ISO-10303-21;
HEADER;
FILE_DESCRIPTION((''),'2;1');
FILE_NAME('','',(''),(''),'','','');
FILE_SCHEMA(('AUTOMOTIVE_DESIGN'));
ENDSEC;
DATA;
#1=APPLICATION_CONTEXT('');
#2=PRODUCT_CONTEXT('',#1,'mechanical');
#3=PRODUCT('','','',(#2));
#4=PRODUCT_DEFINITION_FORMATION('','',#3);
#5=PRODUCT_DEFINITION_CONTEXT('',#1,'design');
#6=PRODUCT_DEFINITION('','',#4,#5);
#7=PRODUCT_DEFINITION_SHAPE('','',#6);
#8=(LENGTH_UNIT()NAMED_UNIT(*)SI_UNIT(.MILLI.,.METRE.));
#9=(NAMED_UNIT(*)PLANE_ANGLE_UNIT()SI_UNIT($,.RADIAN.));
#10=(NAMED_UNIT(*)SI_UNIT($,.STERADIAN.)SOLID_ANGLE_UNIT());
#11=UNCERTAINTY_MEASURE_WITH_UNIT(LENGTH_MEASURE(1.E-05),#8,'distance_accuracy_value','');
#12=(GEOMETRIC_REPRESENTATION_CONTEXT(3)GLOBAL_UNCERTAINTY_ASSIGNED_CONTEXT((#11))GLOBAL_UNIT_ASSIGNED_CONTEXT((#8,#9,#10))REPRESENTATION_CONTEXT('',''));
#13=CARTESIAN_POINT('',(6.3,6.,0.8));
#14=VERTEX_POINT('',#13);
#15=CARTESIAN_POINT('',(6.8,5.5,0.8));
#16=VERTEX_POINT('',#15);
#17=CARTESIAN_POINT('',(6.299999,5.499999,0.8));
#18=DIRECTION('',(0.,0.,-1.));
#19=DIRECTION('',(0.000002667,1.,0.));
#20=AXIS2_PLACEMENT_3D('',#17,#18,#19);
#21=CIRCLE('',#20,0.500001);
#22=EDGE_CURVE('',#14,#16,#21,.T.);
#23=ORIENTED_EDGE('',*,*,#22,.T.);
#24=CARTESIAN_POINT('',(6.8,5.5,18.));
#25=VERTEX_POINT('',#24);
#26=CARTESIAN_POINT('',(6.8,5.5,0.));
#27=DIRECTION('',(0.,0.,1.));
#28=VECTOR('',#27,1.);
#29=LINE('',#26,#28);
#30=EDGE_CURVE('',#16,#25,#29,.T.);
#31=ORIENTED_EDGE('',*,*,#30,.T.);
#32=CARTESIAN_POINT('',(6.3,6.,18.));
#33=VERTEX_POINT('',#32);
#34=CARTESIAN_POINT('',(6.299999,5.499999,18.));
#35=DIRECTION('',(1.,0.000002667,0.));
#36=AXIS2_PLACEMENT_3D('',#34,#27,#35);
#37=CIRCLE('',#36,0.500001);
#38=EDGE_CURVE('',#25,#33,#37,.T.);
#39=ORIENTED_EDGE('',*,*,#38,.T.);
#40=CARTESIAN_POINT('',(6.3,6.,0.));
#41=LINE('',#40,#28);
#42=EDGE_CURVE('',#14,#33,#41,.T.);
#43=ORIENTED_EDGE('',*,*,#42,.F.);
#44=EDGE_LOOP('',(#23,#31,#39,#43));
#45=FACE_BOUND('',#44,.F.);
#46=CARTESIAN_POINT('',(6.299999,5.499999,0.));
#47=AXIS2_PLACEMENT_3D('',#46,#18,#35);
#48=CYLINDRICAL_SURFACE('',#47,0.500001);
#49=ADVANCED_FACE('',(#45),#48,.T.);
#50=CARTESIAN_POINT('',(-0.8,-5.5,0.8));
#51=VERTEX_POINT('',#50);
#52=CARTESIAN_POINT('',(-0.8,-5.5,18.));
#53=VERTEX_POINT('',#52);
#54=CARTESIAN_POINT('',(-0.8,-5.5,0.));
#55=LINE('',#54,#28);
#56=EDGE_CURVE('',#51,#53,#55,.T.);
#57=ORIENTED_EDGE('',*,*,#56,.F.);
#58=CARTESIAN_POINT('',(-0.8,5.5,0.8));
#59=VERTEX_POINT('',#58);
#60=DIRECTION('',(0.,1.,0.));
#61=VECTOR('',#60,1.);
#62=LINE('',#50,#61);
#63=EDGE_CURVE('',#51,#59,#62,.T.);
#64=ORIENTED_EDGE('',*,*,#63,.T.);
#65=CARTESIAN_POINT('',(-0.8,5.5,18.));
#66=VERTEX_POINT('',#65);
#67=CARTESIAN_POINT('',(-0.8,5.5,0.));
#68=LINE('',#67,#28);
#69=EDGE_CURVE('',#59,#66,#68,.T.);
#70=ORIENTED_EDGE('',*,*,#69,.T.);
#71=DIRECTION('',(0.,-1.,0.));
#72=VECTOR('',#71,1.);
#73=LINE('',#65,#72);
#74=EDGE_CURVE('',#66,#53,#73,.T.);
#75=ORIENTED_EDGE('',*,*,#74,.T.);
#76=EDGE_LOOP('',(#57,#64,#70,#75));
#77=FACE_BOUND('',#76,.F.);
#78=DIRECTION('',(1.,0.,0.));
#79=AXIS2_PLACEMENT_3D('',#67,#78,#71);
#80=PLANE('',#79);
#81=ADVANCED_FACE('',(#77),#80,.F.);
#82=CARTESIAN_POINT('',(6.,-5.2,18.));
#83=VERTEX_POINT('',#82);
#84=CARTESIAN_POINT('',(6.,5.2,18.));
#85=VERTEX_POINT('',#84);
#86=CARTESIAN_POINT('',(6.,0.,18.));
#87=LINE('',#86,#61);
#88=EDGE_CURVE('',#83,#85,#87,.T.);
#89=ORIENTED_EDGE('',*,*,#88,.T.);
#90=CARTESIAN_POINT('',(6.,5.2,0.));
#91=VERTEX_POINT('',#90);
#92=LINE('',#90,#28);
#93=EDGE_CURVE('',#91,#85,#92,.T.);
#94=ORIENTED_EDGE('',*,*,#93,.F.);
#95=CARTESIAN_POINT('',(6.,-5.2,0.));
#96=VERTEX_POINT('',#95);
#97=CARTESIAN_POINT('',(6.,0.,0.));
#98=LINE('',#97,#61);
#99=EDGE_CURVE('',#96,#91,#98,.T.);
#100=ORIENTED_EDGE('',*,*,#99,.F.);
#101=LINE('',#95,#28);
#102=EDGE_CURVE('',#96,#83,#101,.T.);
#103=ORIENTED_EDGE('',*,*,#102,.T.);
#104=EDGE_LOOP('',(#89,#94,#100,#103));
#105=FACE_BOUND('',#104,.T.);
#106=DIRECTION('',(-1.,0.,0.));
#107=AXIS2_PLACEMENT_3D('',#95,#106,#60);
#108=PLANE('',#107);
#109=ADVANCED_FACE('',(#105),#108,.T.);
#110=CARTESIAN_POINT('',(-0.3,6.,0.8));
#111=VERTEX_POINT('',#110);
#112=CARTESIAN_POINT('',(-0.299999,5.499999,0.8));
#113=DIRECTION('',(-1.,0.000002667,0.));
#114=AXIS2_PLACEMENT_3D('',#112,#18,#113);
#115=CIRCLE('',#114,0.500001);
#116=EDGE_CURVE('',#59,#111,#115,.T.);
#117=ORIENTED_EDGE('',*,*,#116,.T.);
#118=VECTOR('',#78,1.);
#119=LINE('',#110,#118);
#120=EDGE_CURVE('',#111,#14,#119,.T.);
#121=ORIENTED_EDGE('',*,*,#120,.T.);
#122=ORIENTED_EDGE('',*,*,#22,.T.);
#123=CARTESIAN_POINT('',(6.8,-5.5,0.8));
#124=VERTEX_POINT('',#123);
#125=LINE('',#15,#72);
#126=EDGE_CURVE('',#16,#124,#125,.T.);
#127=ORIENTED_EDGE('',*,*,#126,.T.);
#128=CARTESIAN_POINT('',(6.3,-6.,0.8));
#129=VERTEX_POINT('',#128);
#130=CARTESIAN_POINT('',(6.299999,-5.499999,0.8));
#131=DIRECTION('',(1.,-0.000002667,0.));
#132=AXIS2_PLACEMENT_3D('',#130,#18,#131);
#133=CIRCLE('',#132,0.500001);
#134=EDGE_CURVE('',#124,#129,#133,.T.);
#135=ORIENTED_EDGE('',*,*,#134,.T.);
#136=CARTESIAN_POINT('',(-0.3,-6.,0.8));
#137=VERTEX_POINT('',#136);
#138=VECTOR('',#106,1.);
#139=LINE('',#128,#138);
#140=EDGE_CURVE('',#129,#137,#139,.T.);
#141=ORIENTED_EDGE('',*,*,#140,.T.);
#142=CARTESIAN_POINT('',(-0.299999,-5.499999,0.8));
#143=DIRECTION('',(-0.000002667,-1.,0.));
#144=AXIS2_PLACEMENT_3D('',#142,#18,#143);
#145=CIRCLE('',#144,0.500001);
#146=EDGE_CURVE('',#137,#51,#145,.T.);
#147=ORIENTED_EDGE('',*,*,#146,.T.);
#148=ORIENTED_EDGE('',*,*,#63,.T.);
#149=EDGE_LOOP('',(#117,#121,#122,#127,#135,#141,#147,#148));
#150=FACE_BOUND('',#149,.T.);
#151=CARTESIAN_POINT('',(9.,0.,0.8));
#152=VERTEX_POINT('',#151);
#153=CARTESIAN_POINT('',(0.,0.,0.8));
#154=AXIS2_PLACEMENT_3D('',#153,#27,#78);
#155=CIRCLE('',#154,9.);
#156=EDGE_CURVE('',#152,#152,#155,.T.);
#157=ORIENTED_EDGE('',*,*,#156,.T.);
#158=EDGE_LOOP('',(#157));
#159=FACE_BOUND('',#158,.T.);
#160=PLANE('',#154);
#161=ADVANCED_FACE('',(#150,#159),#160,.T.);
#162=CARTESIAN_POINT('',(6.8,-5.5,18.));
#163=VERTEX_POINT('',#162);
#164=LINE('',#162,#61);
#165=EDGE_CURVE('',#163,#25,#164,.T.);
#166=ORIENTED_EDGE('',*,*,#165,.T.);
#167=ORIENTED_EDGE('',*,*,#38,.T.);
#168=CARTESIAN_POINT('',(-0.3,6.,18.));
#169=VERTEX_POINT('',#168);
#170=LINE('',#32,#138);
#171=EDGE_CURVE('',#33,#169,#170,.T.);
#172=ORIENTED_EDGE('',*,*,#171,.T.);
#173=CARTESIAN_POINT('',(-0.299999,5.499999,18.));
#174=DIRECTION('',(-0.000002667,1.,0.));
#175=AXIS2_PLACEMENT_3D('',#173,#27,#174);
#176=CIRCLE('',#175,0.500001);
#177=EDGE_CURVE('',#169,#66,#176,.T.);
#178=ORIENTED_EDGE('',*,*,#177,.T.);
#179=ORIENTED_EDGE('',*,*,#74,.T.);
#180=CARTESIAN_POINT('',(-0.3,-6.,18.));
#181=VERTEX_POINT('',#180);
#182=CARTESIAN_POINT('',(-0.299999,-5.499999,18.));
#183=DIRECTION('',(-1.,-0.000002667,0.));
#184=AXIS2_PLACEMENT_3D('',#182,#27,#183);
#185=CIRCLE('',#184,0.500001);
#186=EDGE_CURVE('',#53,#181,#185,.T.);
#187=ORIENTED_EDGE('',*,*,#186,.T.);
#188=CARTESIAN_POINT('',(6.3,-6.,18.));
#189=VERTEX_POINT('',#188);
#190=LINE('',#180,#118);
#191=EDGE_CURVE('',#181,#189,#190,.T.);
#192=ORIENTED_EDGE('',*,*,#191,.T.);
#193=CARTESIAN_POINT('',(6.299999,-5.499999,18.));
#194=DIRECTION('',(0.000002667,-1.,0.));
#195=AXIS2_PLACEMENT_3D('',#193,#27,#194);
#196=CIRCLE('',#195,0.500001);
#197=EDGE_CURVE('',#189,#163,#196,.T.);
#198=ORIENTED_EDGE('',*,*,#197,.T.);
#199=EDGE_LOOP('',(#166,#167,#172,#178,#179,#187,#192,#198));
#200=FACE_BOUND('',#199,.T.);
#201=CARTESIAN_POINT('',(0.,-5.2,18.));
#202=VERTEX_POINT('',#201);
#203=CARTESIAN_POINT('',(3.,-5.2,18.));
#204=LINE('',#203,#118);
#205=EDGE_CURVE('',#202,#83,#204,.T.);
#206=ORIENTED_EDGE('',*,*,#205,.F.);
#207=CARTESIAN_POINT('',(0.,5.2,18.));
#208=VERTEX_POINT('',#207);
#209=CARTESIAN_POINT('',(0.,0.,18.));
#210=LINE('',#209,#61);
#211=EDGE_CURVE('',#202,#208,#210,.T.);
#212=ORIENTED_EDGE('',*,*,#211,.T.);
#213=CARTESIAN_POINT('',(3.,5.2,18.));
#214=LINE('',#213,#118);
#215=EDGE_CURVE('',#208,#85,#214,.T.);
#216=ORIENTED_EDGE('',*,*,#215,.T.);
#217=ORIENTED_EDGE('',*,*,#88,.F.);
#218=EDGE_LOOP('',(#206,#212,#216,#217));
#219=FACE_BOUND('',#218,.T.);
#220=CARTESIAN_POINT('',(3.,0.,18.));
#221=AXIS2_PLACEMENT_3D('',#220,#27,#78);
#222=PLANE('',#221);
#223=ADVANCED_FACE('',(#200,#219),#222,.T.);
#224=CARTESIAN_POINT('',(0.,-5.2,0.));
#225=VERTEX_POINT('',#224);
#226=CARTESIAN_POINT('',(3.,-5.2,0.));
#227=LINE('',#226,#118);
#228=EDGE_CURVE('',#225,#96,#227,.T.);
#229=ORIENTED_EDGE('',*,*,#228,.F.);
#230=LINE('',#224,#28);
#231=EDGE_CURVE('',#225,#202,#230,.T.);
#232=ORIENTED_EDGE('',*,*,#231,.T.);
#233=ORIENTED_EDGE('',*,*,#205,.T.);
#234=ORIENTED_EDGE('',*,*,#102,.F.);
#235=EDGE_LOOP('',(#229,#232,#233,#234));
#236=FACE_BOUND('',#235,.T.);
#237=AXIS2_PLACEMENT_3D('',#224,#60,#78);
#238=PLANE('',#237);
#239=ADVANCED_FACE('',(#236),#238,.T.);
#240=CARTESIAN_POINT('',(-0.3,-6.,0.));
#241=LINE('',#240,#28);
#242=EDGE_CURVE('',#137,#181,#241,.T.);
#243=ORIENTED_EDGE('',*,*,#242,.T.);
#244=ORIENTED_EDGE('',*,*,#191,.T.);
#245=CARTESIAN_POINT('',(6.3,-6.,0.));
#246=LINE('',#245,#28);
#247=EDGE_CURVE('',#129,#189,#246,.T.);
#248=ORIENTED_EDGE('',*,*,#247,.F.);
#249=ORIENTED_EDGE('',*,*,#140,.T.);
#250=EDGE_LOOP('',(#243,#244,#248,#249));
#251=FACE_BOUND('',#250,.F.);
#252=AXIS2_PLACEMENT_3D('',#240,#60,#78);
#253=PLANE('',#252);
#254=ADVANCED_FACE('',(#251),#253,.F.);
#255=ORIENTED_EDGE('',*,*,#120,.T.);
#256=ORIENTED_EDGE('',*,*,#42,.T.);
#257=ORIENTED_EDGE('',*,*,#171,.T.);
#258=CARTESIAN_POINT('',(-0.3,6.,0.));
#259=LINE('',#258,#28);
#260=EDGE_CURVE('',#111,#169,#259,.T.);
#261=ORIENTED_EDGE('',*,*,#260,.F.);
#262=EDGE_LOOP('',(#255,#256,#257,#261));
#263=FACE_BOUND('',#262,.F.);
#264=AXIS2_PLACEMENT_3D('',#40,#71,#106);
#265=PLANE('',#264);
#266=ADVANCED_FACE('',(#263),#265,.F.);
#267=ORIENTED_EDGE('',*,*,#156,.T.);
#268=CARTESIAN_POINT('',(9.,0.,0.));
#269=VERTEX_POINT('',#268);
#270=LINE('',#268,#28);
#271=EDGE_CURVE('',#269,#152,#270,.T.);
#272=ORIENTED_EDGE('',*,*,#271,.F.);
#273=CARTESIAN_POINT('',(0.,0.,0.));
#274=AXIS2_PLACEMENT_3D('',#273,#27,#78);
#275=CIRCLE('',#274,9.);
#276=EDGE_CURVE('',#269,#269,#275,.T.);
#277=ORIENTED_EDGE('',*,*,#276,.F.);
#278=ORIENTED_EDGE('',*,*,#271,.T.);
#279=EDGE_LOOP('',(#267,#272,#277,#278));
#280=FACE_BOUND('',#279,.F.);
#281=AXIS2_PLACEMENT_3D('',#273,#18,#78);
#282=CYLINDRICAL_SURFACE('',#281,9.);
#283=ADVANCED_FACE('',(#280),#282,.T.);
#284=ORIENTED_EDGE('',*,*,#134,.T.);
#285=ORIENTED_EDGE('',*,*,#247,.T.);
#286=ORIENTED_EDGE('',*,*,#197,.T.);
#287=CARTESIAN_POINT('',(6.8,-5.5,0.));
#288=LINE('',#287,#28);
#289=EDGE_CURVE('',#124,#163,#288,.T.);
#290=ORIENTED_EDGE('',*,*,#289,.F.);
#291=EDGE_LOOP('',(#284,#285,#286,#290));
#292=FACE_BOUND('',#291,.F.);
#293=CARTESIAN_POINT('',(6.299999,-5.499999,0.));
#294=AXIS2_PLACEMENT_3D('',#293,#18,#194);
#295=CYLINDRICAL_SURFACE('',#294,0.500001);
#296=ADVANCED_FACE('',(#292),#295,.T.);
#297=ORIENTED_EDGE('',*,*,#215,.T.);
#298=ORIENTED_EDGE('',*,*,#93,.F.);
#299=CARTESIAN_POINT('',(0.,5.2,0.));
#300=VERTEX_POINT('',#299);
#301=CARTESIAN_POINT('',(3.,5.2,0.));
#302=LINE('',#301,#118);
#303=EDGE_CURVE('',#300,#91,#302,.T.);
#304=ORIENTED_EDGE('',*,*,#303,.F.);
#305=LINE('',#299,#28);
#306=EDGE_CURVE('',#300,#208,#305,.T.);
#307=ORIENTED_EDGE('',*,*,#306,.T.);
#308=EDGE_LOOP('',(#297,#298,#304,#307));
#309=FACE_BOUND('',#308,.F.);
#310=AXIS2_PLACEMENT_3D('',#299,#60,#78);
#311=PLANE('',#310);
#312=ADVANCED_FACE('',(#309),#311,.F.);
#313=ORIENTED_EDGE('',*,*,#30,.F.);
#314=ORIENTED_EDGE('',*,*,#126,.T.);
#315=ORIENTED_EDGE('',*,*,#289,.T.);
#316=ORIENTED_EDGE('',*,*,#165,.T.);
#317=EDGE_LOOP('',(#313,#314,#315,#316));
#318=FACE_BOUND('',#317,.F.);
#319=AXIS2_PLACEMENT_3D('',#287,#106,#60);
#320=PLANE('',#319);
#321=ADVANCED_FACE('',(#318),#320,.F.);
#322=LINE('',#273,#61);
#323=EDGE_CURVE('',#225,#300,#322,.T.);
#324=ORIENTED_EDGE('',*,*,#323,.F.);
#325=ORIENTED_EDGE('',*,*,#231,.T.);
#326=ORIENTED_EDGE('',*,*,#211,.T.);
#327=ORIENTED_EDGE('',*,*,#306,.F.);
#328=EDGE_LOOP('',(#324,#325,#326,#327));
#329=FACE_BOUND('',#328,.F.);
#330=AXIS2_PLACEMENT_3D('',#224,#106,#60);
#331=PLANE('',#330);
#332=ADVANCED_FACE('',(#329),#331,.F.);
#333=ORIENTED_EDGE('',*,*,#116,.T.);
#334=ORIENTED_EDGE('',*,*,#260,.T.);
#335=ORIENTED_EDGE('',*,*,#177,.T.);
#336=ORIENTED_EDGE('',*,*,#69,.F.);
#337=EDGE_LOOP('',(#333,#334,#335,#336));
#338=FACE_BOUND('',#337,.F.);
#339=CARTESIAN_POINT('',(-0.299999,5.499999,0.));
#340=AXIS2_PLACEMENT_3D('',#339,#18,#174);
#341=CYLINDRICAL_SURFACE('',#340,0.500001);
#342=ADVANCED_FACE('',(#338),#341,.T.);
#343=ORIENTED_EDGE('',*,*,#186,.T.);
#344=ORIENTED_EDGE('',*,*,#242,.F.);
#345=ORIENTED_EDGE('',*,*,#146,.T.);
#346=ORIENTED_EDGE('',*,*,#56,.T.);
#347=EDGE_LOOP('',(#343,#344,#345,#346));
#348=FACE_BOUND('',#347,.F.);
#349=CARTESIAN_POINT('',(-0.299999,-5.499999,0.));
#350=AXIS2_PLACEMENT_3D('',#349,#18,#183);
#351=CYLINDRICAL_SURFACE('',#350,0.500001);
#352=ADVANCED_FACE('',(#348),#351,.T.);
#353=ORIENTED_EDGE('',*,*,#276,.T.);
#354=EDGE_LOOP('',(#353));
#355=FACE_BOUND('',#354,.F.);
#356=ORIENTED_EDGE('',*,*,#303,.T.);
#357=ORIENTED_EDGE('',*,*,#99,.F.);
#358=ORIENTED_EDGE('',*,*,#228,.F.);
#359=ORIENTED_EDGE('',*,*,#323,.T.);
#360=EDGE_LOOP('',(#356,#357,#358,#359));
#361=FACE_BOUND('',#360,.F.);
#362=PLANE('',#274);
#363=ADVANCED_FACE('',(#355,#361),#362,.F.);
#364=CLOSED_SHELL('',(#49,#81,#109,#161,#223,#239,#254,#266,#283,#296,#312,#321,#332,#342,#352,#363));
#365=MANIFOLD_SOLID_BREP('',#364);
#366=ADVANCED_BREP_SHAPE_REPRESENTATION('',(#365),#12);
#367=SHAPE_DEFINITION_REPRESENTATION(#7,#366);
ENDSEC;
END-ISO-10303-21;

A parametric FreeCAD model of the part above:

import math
import FreeCAD as App
import Part
import Sketcher
from FreeCAD import Vector

doc = App.newDocument("Part")
params = doc.addObject("Spreadsheet::Sheet", "Params")
for row, (alias, value) in enumerate([
    ("sketch1_radius", "0.500001 mm"),
    ("sketch1_width", "6 mm"),
    ("sketch1_height", "11 mm"),
    ("sketch1_width2", "6.6 mm"),
    ("sketch1_height2", "10.4 mm"),
    ("pad1_length", "18 mm"),
    ("sketch2_diameter", "18 mm"),
    ("sketch2_radius", "0.500001 mm"),
    ("sketch2_height", "11 mm"),
    ("sketch2_width", "6.6 mm"),
    ("pad2_length", "0.8 mm"),
], start=1):
    params.set(f"A{row}", alias)
    params.set(f"B{row}", "=" + value)
    params.setAlias(f"B{row}", alias)

body = doc.addObject("PartDesign::Body", "Body")

# Sketch on XY plane
sketch1 = body.newObject("Sketcher::SketchObject", "Sketch")
sketch1.AttachmentSupport = (doc.getObject("XY_Plane"), [""])
sketch1.MapMode = "FlatFace"
sketch1.addGeometry([
    Part.LineSegment(Vector(6.8, -5.5, 0), Vector(6.8, 5.5, 0)),  # 0
    Part.ArcOfCircle(Part.Circle(Vector(6.299999, 5.499999, 0), Vector(0, 0, 1), 0.500001), math.radians(0.000153), math.radians(89.999847)),  # 1
    Part.LineSegment(Vector(6.3, 6, 0), Vector(-0.3, 6, 0)),  # 2
    Part.ArcOfCircle(Part.Circle(Vector(-0.299999, 5.499999, 0), Vector(0, 0, 1), 0.500001), math.radians(90.000153), math.radians(179.999847)),  # 3
    Part.LineSegment(Vector(-0.8, 5.5, 0), Vector(-0.8, -5.5, 0)),  # 4
    Part.ArcOfCircle(Part.Circle(Vector(-0.299999, -5.499999, 0), Vector(0, 0, 1), 0.500001), math.radians(-179.999847), math.radians(-90.000153)),  # 5
    Part.LineSegment(Vector(-0.3, -6, 0), Vector(6.3, -6, 0)),  # 6
    Part.ArcOfCircle(Part.Circle(Vector(6.299999, -5.499999, 0), Vector(0, 0, 1), 0.500001), math.radians(-89.999847), math.radians(-0.000153)),  # 7
    Part.LineSegment(Vector(6, -5.2, 0), Vector(0, -5.2, 0)),  # 8
    Part.LineSegment(Vector(0, -5.2, 0), Vector(0, 5.2, 0)),  # 9
    Part.LineSegment(Vector(0, 5.2, 0), Vector(6, 5.2, 0)),  # 10
    Part.LineSegment(Vector(6, 5.2, 0), Vector(6, -5.2, 0)),  # 11
], False)
sketch1.addConstraint([
    Sketcher.Constraint("Coincident", 0, 2, 1, 1),
    Sketcher.Constraint("Coincident", 1, 2, 2, 1),
    Sketcher.Constraint("Coincident", 2, 2, 3, 1),
    Sketcher.Constraint("Coincident", 3, 2, 4, 1),
    Sketcher.Constraint("Coincident", 4, 2, 5, 1),
    Sketcher.Constraint("Coincident", 5, 2, 6, 1),
    Sketcher.Constraint("Coincident", 6, 2, 7, 1),
    Sketcher.Constraint("Coincident", 7, 2, 0, 1),
    Sketcher.Constraint("Coincident", 8, 2, 9, 1),
    Sketcher.Constraint("Coincident", 9, 2, 10, 1),
    Sketcher.Constraint("Coincident", 10, 2, 11, 1),
    Sketcher.Constraint("Coincident", 11, 2, 8, 1),
    Sketcher.Constraint("Vertical", 0),
    Sketcher.Constraint("Horizontal", 2),
    Sketcher.Constraint("Vertical", 4),
    Sketcher.Constraint("Horizontal", 6),
    Sketcher.Constraint("Horizontal", 8),
    Sketcher.Constraint("Vertical", 9),
    Sketcher.Constraint("Horizontal", 10),
    Sketcher.Constraint("Vertical", 11),
    Sketcher.Constraint("Equal", 1, 3),
    Sketcher.Constraint("Equal", 3, 5),
    Sketcher.Constraint("Equal", 5, 7),
    Sketcher.Constraint("Symmetric", 8, 2, 9, 2, -1, 1),
    Sketcher.Constraint("Symmetric", 2, 2, 5, 2, -1),
    Sketcher.Constraint("Horizontal", 3, 3, 0, 2),
    Sketcher.Constraint("Horizontal", 0, 2, 3, 2),
    Sketcher.Constraint("Horizontal", 7, 3, 4, 2),
    Sketcher.Constraint("Horizontal", 4, 2, 7, 2),
    Sketcher.Constraint("Vertical", 7, 3, 1, 2),
    Sketcher.Constraint("Vertical", 5, 3, 2, 2),
    Sketcher.Constraint("Vertical", 1, 2, 6, 2),
    Sketcher.Constraint("Radius", 1, 0.500001),
    Sketcher.Constraint("DistanceX", 8, 2, 8, 1, 6.0),
    Sketcher.Constraint("DistanceY", 0, 1, 0, 2, 11.0),
    Sketcher.Constraint("DistanceX", 2, 2, 2, 1, 6.6),
    Sketcher.Constraint("DistanceY", 9, 1, 9, 2, 10.4),
    Sketcher.Constraint("DistanceX", -1, 1, 1, 3, 6.299999),
])
sketch1.setExpression("Constraints[32]", "Params.sketch1_radius")
sketch1.setExpression("Constraints[33]", "Params.sketch1_width")
sketch1.setExpression("Constraints[34]", "Params.sketch1_height")
sketch1.setExpression("Constraints[35]", "Params.sketch1_width2")
sketch1.setExpression("Constraints[36]", "Params.sketch1_height2")
pad1 = body.newObject("PartDesign::Pad", "Pad")
pad1.Profile = sketch1
pad1.setExpression("Length", "Params.pad1_length")

# Sketch on XY plane
sketch2 = body.newObject("Sketcher::SketchObject", "Sketch001")
sketch2.AttachmentSupport = (doc.getObject("XY_Plane"), [""])
sketch2.MapMode = "FlatFace"
sketch2.addGeometry([
    Part.Circle(Vector(0, 0, 0), Vector(0, 0, 1), 9),  # 0
    Part.LineSegment(Vector(-0.3, 6, 0), Vector(6.3, 6, 0)),  # 1
    Part.ArcOfCircle(Part.Circle(Vector(6.299999, 5.499999, 0), Vector(0, 0, 1), 0.500001), math.radians(0.000153), math.radians(89.999847)),  # 2
    Part.LineSegment(Vector(6.8, 5.5, 0), Vector(6.8, -5.5, 0)),  # 3
    Part.ArcOfCircle(Part.Circle(Vector(6.299999, -5.499999, 0), Vector(0, 0, 1), 0.500001), math.radians(-89.999847), math.radians(-0.000153)),  # 4
    Part.LineSegment(Vector(6.3, -6, 0), Vector(-0.3, -6, 0)),  # 5
    Part.ArcOfCircle(Part.Circle(Vector(-0.299999, -5.499999, 0), Vector(0, 0, 1), 0.500001), math.radians(-179.999847), math.radians(-90.000153)),  # 6
    Part.LineSegment(Vector(-0.8, -5.5, 0), Vector(-0.8, 5.5, 0)),  # 7
    Part.ArcOfCircle(Part.Circle(Vector(-0.299999, 5.499999, 0), Vector(0, 0, 1), 0.500001), math.radians(90.000153), math.radians(179.999847)),  # 8
], False)
sketch2.addConstraint([
    Sketcher.Constraint("Coincident", 1, 2, 2, 2),
    Sketcher.Constraint("Coincident", 2, 1, 3, 1),
    Sketcher.Constraint("Coincident", 3, 2, 4, 2),
    Sketcher.Constraint("Coincident", 4, 1, 5, 1),
    Sketcher.Constraint("Coincident", 5, 2, 6, 2),
    Sketcher.Constraint("Coincident", 6, 1, 7, 1),
    Sketcher.Constraint("Coincident", 7, 2, 8, 2),
    Sketcher.Constraint("Coincident", 8, 1, 1, 1),
    Sketcher.Constraint("Horizontal", 1),
    Sketcher.Constraint("Vertical", 3),
    Sketcher.Constraint("Horizontal", 5),
    Sketcher.Constraint("Vertical", 7),
    Sketcher.Constraint("Coincident", 0, 3, -1, 1),
    Sketcher.Constraint("Equal", 2, 4),
    Sketcher.Constraint("Equal", 4, 6),
    Sketcher.Constraint("Equal", 6, 8),
    Sketcher.Constraint("Symmetric", 1, 2, 4, 1, -1),
    Sketcher.Constraint("Horizontal", 8, 3, 2, 1),
    Sketcher.Constraint("Horizontal", 6, 3, 3, 2),
    Sketcher.Constraint("Horizontal", 3, 2, 6, 1),
    Sketcher.Constraint("Horizontal", 2, 1, 7, 2),
    Sketcher.Constraint("Vertical", 4, 3, 1, 2),
    Sketcher.Constraint("Vertical", 8, 3, 5, 2),
    Sketcher.Constraint("Vertical", 5, 2, 8, 1),
    Sketcher.Constraint("Diameter", 0, 18.0),
    Sketcher.Constraint("Radius", 2, 0.500001),
    Sketcher.Constraint("DistanceY", 3, 2, 3, 1, 11.0),
    Sketcher.Constraint("DistanceX", 1, 1, 1, 2, 6.6),
    Sketcher.Constraint("DistanceX", -1, 1, 2, 3, 6.299999),
])
sketch2.setExpression("Constraints[24]", "Params.sketch2_diameter")
sketch2.setExpression("Constraints[25]", "Params.sketch2_radius")
sketch2.setExpression("Constraints[26]", "Params.sketch2_height")
sketch2.setExpression("Constraints[27]", "Params.sketch2_width")
pad2 = body.newObject("PartDesign::Pad", "Pad001")
pad2.Profile = sketch2
pad2.setExpression("Length", "Params.pad2_length")

doc.recompute()
